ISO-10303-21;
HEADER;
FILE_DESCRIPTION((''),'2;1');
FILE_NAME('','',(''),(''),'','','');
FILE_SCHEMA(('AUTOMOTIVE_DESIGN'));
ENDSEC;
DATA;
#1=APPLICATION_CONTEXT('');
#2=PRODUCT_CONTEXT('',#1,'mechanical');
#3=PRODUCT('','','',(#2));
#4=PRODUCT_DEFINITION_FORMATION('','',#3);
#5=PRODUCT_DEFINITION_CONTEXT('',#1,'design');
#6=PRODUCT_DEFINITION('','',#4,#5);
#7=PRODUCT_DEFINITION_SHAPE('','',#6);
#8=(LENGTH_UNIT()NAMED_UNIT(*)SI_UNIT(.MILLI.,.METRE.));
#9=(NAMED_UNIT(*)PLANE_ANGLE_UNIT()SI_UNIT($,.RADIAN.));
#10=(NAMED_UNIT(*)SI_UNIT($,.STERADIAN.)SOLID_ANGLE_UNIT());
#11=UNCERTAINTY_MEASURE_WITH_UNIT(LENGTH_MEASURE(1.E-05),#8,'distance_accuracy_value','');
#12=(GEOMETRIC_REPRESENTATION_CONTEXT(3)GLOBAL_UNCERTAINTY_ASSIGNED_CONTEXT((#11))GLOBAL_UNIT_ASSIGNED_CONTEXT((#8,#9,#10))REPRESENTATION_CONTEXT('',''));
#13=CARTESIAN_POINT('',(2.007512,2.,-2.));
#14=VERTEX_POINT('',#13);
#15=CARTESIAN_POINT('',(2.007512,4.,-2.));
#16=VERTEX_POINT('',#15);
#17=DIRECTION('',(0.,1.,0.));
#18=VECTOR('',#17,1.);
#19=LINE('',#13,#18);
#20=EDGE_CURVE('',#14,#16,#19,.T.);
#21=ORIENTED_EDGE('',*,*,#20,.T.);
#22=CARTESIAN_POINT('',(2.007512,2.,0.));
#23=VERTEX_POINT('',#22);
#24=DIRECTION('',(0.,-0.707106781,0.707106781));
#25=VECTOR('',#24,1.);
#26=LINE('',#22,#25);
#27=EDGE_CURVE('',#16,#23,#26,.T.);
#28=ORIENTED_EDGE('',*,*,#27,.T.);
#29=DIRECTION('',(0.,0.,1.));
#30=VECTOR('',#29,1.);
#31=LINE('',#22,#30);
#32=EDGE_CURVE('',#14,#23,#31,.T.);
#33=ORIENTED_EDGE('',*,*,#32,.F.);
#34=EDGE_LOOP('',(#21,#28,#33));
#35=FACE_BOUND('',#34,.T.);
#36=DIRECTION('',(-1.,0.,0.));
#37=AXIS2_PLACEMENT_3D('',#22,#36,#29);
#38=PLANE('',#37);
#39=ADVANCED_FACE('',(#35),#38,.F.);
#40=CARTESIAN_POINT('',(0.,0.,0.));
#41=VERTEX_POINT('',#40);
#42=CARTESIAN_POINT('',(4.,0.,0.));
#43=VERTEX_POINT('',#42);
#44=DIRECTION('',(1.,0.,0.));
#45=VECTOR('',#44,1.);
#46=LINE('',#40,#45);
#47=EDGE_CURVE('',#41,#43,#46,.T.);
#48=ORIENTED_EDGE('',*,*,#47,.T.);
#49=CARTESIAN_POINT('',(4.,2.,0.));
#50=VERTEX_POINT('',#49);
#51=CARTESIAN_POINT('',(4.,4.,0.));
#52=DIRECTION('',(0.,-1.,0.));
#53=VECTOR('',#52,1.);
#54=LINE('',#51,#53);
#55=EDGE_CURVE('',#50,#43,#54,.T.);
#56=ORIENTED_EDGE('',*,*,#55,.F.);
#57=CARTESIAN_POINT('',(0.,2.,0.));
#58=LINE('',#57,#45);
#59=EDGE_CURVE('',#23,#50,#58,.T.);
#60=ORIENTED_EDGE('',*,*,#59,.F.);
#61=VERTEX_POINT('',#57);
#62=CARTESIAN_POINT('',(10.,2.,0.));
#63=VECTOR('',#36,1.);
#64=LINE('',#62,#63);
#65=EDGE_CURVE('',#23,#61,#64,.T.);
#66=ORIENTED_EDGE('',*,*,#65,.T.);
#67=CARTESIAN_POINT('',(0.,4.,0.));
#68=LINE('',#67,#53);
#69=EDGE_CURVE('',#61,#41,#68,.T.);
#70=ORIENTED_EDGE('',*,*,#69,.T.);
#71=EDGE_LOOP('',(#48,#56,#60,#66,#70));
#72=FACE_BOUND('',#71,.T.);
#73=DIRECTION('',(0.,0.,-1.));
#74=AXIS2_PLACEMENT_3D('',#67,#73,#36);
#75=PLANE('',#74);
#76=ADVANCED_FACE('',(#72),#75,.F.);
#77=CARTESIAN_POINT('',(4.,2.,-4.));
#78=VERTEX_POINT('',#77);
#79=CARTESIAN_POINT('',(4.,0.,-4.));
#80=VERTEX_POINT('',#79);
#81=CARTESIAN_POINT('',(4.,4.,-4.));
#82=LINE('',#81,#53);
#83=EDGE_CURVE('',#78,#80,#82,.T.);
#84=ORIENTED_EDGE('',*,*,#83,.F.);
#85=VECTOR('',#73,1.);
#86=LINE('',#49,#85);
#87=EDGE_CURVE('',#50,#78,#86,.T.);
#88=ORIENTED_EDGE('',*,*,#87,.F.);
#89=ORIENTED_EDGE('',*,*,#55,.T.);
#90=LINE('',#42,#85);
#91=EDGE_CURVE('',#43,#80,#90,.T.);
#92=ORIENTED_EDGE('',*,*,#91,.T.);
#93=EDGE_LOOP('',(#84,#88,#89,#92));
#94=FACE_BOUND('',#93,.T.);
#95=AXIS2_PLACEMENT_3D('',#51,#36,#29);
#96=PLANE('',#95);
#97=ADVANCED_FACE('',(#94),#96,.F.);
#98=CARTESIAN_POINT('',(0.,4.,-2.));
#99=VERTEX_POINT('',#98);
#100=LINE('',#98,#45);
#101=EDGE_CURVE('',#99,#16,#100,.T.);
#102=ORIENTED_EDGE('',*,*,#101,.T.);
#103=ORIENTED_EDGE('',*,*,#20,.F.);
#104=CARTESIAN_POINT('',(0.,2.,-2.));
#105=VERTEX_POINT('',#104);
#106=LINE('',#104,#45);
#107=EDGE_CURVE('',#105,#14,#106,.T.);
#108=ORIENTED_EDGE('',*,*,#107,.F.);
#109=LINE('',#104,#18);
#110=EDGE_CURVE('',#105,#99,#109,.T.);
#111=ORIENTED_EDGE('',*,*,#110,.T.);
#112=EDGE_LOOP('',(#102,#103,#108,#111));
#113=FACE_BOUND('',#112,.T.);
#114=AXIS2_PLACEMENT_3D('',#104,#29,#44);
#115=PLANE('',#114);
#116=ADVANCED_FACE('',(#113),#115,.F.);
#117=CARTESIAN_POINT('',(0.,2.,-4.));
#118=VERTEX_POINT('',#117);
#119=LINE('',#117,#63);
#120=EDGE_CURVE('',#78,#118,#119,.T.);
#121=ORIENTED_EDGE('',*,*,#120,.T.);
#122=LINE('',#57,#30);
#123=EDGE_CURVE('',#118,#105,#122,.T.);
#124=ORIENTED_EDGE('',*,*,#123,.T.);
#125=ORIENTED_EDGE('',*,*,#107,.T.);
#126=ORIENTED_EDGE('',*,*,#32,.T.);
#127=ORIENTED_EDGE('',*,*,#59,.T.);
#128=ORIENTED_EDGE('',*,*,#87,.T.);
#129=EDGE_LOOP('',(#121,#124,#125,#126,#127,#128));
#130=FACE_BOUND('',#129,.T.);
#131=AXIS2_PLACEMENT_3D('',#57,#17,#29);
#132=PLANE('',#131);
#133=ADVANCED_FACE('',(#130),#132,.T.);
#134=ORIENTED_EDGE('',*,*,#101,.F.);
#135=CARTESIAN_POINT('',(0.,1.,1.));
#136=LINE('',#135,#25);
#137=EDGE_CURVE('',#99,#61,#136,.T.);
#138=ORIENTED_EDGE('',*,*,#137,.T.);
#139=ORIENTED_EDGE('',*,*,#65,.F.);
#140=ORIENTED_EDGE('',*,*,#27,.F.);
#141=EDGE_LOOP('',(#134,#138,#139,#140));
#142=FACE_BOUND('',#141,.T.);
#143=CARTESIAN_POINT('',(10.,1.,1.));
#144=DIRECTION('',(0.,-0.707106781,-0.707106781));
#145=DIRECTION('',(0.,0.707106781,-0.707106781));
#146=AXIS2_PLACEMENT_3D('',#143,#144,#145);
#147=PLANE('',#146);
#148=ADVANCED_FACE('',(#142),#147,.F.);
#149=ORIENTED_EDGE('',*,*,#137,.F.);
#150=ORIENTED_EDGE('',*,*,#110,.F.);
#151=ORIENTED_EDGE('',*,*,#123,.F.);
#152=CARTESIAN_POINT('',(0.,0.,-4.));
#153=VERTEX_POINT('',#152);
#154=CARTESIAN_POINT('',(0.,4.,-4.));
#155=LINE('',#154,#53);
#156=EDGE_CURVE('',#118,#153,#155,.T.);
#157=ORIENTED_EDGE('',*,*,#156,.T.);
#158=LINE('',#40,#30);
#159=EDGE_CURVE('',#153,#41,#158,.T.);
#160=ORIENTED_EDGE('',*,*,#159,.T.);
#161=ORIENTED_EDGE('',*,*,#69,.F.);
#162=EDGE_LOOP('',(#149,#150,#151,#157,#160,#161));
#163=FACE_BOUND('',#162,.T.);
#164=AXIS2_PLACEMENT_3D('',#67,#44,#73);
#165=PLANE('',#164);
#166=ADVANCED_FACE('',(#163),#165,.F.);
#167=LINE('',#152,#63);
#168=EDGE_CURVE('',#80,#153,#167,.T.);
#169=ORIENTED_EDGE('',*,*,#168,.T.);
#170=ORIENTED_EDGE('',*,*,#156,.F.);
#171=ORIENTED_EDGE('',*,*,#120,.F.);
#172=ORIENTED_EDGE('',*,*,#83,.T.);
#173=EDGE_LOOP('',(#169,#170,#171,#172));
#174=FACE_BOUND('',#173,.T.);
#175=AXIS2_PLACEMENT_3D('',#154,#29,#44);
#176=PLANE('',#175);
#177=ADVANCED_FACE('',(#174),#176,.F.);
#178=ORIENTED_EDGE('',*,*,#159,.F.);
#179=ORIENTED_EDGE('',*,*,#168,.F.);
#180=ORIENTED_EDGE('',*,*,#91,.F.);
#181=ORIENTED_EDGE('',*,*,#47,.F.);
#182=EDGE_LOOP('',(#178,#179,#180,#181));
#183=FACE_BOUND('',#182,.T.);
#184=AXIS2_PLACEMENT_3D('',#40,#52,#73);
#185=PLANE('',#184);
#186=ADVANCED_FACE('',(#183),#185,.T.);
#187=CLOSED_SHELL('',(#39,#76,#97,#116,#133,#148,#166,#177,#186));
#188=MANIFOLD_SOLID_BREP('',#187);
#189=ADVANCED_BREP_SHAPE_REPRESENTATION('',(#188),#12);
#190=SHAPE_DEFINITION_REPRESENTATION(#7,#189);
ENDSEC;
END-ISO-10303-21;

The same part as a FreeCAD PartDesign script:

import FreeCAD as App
import Part
import Sketcher

V = App.Vector
Q = App.Units.Quantity


def add_polygon(sketch, points):
    """Adds a closed chain of lines whose ends are joined by coincident constraints."""
    first, n = sketch.GeometryCount, len(points)
    for a, b in zip(points, points[1:] + points[:1]):
        sketch.addGeometry(Part.LineSegment(App.Vector(*a, 0), App.Vector(*b, 0)), False)
    for i in range(n):
        sketch.addConstraint(Sketcher.Constraint("Coincident", first + i, 2, first + (i + 1) % n, 1))

doc = App.newDocument("Part")
body = doc.addObject("PartDesign::Body", "Body")

# Sketch on XZ plane
sketch1 = doc.addObject("Sketcher::SketchObject", "Sketch")
body.addObject(sketch1)
sketch1.AttachmentSupport = (doc.XZ_Plane, [""])
sketch1.MapMode = "FlatFace"
add_polygon(sketch1, [(0, -4), (0, 0), (4, 0), (4, -4)])  # lines 0-3
sketch1.addConstraint([
    Sketcher.Constraint("Vertical", 0),
    Sketcher.Constraint("Horizontal", 1),
    Sketcher.Constraint("Vertical", 2),
    Sketcher.Constraint("Horizontal", 3),
    Sketcher.Constraint("Coincident", 0, 2, -1, 1),
    Sketcher.Constraint("Equal", 3, 0),
    Sketcher.Constraint("DistanceX", 1, 1, 1, 2, Q("4 mm")),
])
pad1 = doc.addObject("PartDesign::Pad", "Pad")
body.addObject(pad1)
pad1.Profile = sketch1
pad1.Length = 4
pad1.Reversed = True

# Sketch on XZ plane
sketch2 = doc.addObject("Sketcher::SketchObject", "Sketch001")
body.addObject(sketch2)
sketch2.AttachmentSupport = (doc.XZ_Plane, [""])
sketch2.MapMode = "FlatFace"
sketch2.AttachmentOffset = App.Placement(V(0, 0, -4), App.Rotation())
add_polygon(sketch2, [(0, -4), (0, -2), (2, -2), (2, 0), (4, 0), (4, -4)])  # lines 0-5
sketch2.addConstraint([
    Sketcher.Constraint("Vertical", 0),
    Sketcher.Constraint("Horizontal", 1),
    Sketcher.Constraint("Vertical", 2),
    Sketcher.Constraint("Horizontal", 3),
    Sketcher.Constraint("Vertical", 4),
    Sketcher.Constraint("Horizontal", 5),
    Sketcher.Constraint("PointOnObject", 0, 2, -2),
    Sketcher.Constraint("PointOnObject", 2, 2, -1),
    Sketcher.Constraint("Equal", 0, 2),
    Sketcher.Constraint("Equal", 5, 4),
    Sketcher.Constraint("DistanceX", 5, 2, 5, 1, Q("4 mm")),
    Sketcher.Constraint("DistanceX", 1, 1, 1, 2, Q("2.007512 mm")),
])
pocket1 = doc.addObject("PartDesign::Pocket", "Pocket")
body.addObject(pocket1)
pocket1.Profile = sketch2
pocket1.Length = 2
pocket1.Reversed = True

# Sketch on YZ plane
sketch3 = doc.addObject("Sketcher::SketchObject", "Sketch002")
body.addObject(sketch3)
sketch3.AttachmentSupport = (doc.YZ_Plane, [""])
sketch3.MapMode = "FlatFace"
add_polygon(sketch3, [(4, 0), (4, -2), (2, 0)])  # lines 0-2
sketch3.addConstraint([
    Sketcher.Constraint("Vertical", 0),
    Sketcher.Constraint("Horizontal", 2),
    Sketcher.Constraint("PointOnObject", 1, 2, -1),
    Sketcher.Constraint("Equal", 2, 0),
    Sketcher.Constraint("DistanceX", 2, 1, 2, 2, Q("2 mm")),
    Sketcher.Constraint("DistanceX", -1, 1, 0, 2, Q("4 mm")),
])
pocket2 = doc.addObject("PartDesign::Pocket", "Pocket001")
body.addObject(pocket2)
pocket2.Profile = sketch3
pocket2.Length = 10
pocket2.Reversed = True

doc.recompute()
